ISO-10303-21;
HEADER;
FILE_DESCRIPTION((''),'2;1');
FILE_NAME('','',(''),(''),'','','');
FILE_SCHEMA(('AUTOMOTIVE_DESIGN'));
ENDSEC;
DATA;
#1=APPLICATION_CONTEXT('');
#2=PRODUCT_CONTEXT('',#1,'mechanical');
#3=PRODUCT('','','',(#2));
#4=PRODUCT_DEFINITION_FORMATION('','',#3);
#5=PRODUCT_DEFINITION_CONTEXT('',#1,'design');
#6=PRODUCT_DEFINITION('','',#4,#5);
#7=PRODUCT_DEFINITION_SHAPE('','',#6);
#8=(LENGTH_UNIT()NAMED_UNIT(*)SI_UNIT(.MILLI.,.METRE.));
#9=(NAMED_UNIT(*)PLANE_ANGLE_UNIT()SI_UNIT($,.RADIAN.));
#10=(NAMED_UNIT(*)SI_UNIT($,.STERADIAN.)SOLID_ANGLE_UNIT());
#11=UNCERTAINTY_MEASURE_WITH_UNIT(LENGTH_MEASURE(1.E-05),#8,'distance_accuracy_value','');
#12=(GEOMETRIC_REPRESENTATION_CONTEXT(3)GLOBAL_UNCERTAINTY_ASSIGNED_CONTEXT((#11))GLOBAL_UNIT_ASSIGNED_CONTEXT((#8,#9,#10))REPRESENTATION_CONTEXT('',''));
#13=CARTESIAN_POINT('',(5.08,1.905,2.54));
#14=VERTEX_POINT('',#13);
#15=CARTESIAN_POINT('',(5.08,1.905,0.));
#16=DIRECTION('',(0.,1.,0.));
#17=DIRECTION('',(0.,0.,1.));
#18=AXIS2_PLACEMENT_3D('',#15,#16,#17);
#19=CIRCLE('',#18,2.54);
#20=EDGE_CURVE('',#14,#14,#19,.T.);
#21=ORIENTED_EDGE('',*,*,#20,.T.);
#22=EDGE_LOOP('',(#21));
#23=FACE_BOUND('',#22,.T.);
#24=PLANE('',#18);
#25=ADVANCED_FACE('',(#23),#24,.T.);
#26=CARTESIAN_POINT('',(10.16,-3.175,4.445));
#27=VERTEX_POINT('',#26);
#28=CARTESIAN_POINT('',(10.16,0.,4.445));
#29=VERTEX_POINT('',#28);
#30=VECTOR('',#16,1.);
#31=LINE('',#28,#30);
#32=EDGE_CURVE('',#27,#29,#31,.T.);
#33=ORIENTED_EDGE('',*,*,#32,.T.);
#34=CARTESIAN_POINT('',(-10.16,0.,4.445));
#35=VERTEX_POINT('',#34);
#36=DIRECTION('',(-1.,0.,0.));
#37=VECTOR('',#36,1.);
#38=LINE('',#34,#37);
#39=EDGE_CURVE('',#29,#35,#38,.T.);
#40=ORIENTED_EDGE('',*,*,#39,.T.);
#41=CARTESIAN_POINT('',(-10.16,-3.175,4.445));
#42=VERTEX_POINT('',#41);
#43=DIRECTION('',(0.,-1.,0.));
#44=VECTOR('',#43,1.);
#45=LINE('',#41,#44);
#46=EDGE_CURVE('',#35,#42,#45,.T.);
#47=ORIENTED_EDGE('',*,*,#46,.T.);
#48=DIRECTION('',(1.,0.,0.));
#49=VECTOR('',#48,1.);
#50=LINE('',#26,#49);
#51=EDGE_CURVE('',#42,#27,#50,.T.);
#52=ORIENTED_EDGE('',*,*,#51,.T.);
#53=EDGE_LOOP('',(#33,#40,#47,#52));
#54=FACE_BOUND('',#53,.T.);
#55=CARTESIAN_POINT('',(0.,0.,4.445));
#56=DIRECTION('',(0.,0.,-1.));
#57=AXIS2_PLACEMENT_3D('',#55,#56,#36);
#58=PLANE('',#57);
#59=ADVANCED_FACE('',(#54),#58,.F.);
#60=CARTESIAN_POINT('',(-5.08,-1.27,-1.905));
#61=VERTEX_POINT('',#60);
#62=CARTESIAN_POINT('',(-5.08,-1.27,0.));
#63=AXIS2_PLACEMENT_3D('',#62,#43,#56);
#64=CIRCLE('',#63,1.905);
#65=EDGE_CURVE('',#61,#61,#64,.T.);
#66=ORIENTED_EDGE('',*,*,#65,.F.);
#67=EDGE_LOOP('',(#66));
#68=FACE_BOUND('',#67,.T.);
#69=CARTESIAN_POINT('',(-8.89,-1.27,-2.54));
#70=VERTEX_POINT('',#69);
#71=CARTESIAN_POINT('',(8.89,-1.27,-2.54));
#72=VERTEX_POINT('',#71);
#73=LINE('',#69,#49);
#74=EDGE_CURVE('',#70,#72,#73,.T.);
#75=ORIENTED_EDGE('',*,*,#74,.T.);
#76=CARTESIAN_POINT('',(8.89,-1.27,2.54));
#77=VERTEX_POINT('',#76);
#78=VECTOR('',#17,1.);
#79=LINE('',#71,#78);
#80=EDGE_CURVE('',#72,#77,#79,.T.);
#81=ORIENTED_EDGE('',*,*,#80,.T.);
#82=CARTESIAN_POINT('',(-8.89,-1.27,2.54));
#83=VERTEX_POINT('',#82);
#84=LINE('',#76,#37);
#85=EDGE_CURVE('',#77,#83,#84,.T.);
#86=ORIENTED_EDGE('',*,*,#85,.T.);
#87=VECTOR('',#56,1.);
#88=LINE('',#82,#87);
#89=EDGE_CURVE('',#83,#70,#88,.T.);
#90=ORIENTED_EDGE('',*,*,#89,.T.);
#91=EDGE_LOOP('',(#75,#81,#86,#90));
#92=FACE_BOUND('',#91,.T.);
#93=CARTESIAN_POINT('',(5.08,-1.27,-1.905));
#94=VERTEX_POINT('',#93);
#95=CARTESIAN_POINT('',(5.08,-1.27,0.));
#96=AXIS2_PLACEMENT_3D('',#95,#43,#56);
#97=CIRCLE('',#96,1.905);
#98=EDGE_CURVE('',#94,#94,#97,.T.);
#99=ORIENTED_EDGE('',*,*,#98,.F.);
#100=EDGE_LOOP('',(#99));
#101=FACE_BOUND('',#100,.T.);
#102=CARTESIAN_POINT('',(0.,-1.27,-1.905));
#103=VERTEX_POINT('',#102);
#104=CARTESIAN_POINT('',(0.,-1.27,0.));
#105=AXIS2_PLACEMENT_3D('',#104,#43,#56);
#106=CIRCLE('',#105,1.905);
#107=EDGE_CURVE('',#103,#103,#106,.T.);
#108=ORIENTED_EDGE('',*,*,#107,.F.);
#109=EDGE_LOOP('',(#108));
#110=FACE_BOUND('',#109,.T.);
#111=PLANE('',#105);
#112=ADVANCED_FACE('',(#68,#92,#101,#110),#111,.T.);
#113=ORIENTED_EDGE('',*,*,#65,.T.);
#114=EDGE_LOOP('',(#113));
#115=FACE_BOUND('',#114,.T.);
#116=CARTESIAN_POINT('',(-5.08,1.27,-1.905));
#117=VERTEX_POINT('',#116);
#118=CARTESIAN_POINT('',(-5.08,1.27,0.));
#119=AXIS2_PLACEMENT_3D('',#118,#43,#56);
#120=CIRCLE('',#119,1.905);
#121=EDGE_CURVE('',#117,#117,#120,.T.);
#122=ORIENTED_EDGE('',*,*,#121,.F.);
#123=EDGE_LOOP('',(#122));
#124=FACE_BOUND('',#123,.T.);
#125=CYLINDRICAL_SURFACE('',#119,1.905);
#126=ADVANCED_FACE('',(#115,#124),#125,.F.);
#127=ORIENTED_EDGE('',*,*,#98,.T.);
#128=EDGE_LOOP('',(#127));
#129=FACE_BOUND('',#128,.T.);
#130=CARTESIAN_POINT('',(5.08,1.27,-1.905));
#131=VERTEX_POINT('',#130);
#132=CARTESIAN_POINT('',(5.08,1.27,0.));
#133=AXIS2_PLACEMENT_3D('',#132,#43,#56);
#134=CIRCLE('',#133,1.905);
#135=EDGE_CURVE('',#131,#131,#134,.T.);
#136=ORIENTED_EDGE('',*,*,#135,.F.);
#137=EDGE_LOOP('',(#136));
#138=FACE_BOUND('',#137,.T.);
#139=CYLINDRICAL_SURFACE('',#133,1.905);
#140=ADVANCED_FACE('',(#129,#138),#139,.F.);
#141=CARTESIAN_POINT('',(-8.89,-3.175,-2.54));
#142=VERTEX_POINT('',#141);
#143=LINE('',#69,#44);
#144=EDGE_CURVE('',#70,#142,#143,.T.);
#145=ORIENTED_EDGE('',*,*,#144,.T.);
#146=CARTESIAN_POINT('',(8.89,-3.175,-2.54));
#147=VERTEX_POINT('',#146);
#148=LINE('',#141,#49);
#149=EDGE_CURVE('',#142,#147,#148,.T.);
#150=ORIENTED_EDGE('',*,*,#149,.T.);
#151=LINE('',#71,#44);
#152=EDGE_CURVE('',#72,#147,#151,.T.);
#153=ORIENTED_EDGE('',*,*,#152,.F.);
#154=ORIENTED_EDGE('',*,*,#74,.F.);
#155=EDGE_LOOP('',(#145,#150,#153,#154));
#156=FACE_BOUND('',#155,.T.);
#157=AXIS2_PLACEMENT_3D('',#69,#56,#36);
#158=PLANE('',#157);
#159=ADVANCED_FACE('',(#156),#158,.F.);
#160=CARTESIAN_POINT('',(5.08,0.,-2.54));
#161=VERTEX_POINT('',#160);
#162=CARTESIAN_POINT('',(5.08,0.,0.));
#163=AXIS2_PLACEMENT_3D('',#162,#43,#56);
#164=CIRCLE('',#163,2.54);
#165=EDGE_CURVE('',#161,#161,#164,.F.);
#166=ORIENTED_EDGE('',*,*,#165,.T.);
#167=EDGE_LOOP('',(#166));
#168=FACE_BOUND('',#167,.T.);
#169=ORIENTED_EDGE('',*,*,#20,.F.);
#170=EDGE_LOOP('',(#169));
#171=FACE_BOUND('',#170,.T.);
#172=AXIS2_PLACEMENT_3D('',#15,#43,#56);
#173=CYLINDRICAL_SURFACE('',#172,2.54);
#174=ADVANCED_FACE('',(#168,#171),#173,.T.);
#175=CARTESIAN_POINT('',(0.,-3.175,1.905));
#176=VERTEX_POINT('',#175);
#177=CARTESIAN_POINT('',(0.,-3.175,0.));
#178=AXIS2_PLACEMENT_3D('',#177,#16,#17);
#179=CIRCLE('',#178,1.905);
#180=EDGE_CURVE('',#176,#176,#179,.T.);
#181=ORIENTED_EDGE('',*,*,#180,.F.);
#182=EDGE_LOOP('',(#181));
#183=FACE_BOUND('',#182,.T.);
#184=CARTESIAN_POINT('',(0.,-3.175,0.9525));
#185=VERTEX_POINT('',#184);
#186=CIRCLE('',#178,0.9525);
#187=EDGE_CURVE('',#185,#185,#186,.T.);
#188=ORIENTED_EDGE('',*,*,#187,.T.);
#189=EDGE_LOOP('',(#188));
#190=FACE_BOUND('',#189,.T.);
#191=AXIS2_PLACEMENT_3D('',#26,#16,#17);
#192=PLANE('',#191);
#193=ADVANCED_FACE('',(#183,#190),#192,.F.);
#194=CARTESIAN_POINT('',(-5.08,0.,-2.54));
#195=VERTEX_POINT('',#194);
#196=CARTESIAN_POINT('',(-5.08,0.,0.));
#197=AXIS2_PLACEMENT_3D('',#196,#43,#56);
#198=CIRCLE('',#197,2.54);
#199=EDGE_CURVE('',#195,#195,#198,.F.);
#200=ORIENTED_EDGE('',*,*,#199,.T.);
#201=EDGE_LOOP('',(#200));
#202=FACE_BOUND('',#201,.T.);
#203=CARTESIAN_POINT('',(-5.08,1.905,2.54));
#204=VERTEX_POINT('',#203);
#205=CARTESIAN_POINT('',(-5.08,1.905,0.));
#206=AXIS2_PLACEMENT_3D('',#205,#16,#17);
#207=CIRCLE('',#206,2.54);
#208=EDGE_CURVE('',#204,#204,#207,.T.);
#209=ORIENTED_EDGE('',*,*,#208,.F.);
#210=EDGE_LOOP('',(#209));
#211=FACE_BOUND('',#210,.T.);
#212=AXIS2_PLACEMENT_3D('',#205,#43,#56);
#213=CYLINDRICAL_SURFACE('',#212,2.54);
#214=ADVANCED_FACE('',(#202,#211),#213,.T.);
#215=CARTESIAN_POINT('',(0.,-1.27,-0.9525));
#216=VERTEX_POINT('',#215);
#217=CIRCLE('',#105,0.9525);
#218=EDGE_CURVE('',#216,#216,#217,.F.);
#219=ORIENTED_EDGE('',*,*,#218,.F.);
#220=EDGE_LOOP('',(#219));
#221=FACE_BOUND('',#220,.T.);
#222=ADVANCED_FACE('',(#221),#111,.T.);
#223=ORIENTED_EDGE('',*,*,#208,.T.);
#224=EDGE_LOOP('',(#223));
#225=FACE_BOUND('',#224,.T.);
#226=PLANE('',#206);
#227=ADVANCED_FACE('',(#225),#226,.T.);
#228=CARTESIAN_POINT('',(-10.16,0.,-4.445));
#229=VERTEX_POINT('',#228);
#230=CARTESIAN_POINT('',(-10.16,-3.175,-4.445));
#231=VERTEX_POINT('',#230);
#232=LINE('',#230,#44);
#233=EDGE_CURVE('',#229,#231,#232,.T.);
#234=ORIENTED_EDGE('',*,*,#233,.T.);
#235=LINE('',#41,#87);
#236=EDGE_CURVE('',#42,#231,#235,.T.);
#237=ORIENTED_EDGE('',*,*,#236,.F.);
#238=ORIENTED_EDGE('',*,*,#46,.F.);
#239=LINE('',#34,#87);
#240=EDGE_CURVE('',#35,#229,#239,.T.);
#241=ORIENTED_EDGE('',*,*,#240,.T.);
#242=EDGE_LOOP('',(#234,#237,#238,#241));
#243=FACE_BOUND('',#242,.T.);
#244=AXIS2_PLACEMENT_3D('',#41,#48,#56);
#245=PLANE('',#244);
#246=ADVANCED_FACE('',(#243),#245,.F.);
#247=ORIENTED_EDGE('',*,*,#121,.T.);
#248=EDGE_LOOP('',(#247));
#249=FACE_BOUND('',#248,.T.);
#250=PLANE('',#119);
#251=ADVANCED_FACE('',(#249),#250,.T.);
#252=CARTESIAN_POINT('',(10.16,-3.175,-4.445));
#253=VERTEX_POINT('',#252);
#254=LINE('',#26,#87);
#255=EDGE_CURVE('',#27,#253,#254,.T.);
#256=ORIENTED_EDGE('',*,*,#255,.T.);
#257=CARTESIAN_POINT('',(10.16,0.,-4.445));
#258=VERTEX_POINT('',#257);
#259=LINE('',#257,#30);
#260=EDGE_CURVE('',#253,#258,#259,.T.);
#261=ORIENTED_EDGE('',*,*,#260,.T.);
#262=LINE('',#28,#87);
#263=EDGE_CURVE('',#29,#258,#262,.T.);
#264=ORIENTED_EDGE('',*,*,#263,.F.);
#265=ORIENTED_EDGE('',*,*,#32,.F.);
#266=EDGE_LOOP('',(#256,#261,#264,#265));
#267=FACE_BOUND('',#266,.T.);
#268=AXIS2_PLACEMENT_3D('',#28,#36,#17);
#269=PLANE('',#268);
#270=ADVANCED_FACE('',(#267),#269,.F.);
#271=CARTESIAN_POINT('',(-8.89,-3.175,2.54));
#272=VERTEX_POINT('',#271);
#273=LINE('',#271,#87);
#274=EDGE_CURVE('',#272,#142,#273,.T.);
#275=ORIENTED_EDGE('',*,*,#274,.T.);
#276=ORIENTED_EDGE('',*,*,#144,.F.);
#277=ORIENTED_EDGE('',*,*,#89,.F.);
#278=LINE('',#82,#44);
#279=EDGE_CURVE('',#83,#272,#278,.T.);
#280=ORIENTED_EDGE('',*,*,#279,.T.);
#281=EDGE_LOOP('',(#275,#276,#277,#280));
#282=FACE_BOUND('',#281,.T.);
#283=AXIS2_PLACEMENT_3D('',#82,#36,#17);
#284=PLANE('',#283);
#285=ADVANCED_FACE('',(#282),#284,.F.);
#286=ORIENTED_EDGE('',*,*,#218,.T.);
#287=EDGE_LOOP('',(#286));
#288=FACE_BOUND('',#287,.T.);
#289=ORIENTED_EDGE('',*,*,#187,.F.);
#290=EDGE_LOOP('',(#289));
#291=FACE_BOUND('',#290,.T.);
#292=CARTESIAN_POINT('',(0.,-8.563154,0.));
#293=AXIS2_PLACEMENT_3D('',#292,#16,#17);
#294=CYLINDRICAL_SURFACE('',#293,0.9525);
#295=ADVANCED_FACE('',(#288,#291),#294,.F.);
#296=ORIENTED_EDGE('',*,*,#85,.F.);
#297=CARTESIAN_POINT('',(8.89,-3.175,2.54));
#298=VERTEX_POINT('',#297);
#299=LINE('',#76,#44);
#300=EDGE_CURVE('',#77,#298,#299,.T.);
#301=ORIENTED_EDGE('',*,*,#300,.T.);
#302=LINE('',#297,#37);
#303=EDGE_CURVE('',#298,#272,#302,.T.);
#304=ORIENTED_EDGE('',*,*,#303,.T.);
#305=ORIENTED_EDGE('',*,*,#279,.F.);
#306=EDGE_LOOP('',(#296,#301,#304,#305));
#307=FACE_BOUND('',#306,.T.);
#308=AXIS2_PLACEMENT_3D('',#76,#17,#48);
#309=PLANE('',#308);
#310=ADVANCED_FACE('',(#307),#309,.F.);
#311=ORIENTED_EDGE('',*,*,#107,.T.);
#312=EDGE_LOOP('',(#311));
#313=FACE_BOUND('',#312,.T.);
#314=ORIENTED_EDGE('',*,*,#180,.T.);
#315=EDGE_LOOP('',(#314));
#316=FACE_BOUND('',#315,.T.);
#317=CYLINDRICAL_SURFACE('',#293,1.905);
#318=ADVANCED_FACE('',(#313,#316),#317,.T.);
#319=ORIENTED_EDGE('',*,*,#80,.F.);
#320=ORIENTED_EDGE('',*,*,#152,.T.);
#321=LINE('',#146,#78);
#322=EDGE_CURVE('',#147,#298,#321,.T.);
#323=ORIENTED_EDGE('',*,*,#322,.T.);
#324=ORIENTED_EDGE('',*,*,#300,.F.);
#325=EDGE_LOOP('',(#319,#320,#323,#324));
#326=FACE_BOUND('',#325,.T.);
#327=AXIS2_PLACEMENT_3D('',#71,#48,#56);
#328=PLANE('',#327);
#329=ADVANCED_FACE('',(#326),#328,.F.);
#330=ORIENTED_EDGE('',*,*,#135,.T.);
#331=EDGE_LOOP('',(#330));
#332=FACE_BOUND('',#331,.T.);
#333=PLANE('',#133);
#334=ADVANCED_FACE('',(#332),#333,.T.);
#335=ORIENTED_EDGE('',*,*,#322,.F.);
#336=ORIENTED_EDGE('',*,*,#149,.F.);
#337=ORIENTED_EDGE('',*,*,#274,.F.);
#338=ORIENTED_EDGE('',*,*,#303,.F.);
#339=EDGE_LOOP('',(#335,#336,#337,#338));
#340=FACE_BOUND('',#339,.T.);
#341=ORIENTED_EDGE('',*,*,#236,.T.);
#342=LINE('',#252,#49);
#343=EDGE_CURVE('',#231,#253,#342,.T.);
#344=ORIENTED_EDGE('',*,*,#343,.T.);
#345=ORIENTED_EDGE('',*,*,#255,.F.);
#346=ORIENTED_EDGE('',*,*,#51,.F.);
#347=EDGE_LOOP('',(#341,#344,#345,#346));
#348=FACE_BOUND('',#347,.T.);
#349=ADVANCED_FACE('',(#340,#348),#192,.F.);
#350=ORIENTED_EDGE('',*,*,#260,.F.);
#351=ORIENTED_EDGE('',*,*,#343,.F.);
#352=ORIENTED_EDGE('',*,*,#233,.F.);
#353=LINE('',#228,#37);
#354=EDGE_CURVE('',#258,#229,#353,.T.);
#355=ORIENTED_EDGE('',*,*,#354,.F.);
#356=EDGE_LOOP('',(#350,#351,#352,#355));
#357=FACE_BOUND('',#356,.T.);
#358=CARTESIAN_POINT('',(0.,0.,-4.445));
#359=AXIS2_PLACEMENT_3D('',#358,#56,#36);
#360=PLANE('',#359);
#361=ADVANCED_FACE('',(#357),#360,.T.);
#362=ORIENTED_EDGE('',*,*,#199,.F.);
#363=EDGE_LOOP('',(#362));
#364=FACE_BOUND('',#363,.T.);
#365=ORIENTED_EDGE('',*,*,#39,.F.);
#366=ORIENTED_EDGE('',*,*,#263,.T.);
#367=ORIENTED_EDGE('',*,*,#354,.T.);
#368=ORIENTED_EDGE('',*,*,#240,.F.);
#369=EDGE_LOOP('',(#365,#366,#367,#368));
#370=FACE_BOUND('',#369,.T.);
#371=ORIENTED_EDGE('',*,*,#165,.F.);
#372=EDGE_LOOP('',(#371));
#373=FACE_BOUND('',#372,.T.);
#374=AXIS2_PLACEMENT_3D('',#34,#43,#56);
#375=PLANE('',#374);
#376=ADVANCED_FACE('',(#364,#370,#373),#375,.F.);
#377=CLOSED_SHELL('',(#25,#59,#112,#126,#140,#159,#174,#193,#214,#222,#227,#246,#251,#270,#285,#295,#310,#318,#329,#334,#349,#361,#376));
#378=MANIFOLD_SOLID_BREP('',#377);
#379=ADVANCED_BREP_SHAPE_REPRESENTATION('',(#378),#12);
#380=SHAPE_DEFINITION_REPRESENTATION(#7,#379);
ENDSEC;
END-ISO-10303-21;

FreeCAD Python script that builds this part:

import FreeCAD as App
import Part
import Sketcher
from FreeCAD import Vector
Q = App.Units.Quantity

doc = App.newDocument("Part")
body = doc.addObject("PartDesign::Body", "Body")

sketch1 = body.newObject("Sketcher::SketchObject", "Sketch")
sketch1.AttachmentSupport = (doc.getObject("XY_Plane"), [""])
sketch1.MapMode = "FlatFace"
sketch1.addGeometry(Part.LineSegment(Vector(-10.2, 0, 0), Vector(-10.2, -3.2, 0)), False)
sketch1.addGeometry(Part.LineSegment(Vector(-10.2, -3.2, 0), Vector(10.2, -3.2, 0)), False)
sketch1.addGeometry(Part.LineSegment(Vector(10.2, -3.2, 0), Vector(10.2, 0, 0)), False)
sketch1.addGeometry(Part.LineSegment(Vector(10.2, 0, 0), Vector(-10.2, 0, 0)), False)
sketch1.addConstraint(Sketcher.Constraint("Coincident", 0, 2, 1, 1))
sketch1.addConstraint(Sketcher.Constraint("Coincident", 1, 2, 2, 1))
sketch1.addConstraint(Sketcher.Constraint("Coincident", 2, 2, 3, 1))
sketch1.addConstraint(Sketcher.Constraint("Coincident", 3, 2, 0, 1))
sketch1.addConstraint(Sketcher.Constraint("Vertical", 0))
sketch1.addConstraint(Sketcher.Constraint("Horizontal", 1))
sketch1.addConstraint(Sketcher.Constraint("Vertical", 2))
sketch1.addConstraint(Sketcher.Constraint("Horizontal", 3))
sketch1.addConstraint(Sketcher.Constraint("Symmetric", 2, 2, 3, 2, -1, 1))
sketch1.addConstraint(Sketcher.Constraint("DistanceX", 1, 1, 1, 2, Q("0.8 in")))
sketch1.addConstraint(Sketcher.Constraint("DistanceY", 0, 2, 0, 1, Q("0.125 in")))
pad1 = body.newObject("PartDesign::Pad", "Pad")
pad1.Profile = sketch1
pad1.Length = Q("0.35 in")
pad1.Midplane = True

sketch2 = body.newObject("Sketcher::SketchObject", "Sketch001")
sketch2.AttachmentSupport = (doc.getObject("XZ_Plane"), [""])
sketch2.MapMode = "FlatFace"
sketch2.addGeometry(Part.Circle(Vector(-5.1, 0, 0), Vector(0, 0, 1), 2.5), False)
sketch2.addGeometry(Part.Circle(Vector(5.1, 0, 0), Vector(0, 0, 1), 2.5), False)
sketch2.addConstraint(Sketcher.Constraint("Equal", 0, 1))
sketch2.addConstraint(Sketcher.Constraint("Symmetric", 0, 3, 1, 3, -1, 1))
sketch2.addConstraint(Sketcher.Constraint("PointOnObject", 0, 3, -1))
sketch2.addConstraint(Sketcher.Constraint("Diameter", 0, Q("0.2 in")))
sketch2.addConstraint(Sketcher.Constraint("DistanceX", 0, 3, -1, 1, Q("0.2 in")))
pad2 = body.newObject("PartDesign::Pad", "Pad001")
pad2.Profile = sketch2
pad2.Length = Q("0.075 in")
pad2.Reversed = True

sketch3 = body.newObject("Sketcher::SketchObject", "Sketch002")
sketch3.AttachmentSupport = (doc.getObject("XZ_Plane"), [""])
sketch3.MapMode = "FlatFace"
sketch3.AttachmentOffset = App.Placement(Vector(0, 0, 0.125 * 25.4), App.Rotation())
sketch3.addGeometry(Part.LineSegment(Vector(-9, 3, 0), Vector(-9, -3, 0)), False)
sketch3.addGeometry(Part.LineSegment(Vector(-9, -3, 0), Vector(9, -3, 0)), False)
sketch3.addGeometry(Part.LineSegment(Vector(9, -3, 0), Vector(9, 3, 0)), False)
sketch3.addGeometry(Part.LineSegment(Vector(9, 3, 0), Vector(-9, 3, 0)), False)
sketch3.addConstraint(Sketcher.Constraint("Coincident", 0, 2, 1, 1))
sketch3.addConstraint(Sketcher.Constraint("Coincident", 1, 2, 2, 1))
sketch3.addConstraint(Sketcher.Constraint("Coincident", 2, 2, 3, 1))
sketch3.addConstraint(Sketcher.Constraint("Coincident", 3, 2, 0, 1))
sketch3.addConstraint(Sketcher.Constraint("Vertical", 0))
sketch3.addConstraint(Sketcher.Constraint("Horizontal", 1))
sketch3.addConstraint(Sketcher.Constraint("Vertical", 2))
sketch3.addConstraint(Sketcher.Constraint("Horizontal", 3))
sketch3.addConstraint(Sketcher.Constraint("Symmetric", 0, 2, 2, 2, -1, 1))
sketch3.addConstraint(Sketcher.Constraint("DistanceX", 1, 1, 1, 2, Q("0.7 in")))
sketch3.addConstraint(Sketcher.Constraint("DistanceY", 0, 2, 0, 1, Q("0.2 in")))
pocket1 = body.newObject("PartDesign::Pocket", "Pocket")
pocket1.Profile = sketch3
pocket1.Length = Q("0.075 in")

sketch4 = body.newObject("Sketcher::SketchObject", "Sketch003")
sketch4.AttachmentSupport = (doc.getObject("XZ_Plane"), [""])
sketch4.MapMode = "FlatFace"
sketch4.AttachmentOffset = App.Placement(Vector(0, 0, 0.05 * 25.4), App.Rotation())
sketch4.addGeometry(Part.Circle(Vector(-5.1, 0, 0), Vector(0, 0, 1), 1.9), False)
sketch4.addGeometry(Part.Circle(Vector(5.1, 0, 0), Vector(0, 0, 1), 1.9), False)
sketch4.addConstraint(Sketcher.Constraint("Equal", 0, 1))
sketch4.addConstraint(Sketcher.Constraint("Symmetric", 0, 3, 1, 3, -1, 1))
sketch4.addConstraint(Sketcher.Constraint("PointOnObject", 0, 3, -1))
sketch4.addConstraint(Sketcher.Constraint("Diameter", 0, Q("0.15 in")))
sketch4.addConstraint(Sketcher.Constraint("DistanceX", 0, 3, -1, 1, Q("0.2 in")))
pocket2 = body.newObject("PartDesign::Pocket", "Pocket001")
pocket2.Profile = sketch4
pocket2.Length = Q("0.1 in")

sketch5 = body.newObject("Sketcher::SketchObject", "Sketch004")
sketch5.AttachmentSupport = (doc.getObject("XZ_Plane"), [""])
sketch5.MapMode = "FlatFace"
sketch5.AttachmentOffset = App.Placement(Vector(0, 0, 0.05 * 25.4), App.Rotation())
sketch5.addGeometry(Part.Circle(Vector(0, 0, 0), Vector(0, 0, 1), 1.9), False)
sketch5.addGeometry(Part.Circle(Vector(0, 0, 0), Vector(0, 0, 1), 1), False)
sketch5.addConstraint(Sketcher.Constraint("Coincident", 0, 3, -1, 1))
sketch5.addConstraint(Sketcher.Constraint("Coincident", 1, 3, -1, 1))
sketch5.addConstraint(Sketcher.Constraint("Diameter", 0, Q("0.15 in")))
sketch5.addConstraint(Sketcher.Constraint("Diameter", 1, Q("0.075 in")))
pad3 = body.newObject("PartDesign::Pad", "Pad002")
pad3.Profile = sketch5
pad3.Length = Q("0.075 in")

doc.recompute()
